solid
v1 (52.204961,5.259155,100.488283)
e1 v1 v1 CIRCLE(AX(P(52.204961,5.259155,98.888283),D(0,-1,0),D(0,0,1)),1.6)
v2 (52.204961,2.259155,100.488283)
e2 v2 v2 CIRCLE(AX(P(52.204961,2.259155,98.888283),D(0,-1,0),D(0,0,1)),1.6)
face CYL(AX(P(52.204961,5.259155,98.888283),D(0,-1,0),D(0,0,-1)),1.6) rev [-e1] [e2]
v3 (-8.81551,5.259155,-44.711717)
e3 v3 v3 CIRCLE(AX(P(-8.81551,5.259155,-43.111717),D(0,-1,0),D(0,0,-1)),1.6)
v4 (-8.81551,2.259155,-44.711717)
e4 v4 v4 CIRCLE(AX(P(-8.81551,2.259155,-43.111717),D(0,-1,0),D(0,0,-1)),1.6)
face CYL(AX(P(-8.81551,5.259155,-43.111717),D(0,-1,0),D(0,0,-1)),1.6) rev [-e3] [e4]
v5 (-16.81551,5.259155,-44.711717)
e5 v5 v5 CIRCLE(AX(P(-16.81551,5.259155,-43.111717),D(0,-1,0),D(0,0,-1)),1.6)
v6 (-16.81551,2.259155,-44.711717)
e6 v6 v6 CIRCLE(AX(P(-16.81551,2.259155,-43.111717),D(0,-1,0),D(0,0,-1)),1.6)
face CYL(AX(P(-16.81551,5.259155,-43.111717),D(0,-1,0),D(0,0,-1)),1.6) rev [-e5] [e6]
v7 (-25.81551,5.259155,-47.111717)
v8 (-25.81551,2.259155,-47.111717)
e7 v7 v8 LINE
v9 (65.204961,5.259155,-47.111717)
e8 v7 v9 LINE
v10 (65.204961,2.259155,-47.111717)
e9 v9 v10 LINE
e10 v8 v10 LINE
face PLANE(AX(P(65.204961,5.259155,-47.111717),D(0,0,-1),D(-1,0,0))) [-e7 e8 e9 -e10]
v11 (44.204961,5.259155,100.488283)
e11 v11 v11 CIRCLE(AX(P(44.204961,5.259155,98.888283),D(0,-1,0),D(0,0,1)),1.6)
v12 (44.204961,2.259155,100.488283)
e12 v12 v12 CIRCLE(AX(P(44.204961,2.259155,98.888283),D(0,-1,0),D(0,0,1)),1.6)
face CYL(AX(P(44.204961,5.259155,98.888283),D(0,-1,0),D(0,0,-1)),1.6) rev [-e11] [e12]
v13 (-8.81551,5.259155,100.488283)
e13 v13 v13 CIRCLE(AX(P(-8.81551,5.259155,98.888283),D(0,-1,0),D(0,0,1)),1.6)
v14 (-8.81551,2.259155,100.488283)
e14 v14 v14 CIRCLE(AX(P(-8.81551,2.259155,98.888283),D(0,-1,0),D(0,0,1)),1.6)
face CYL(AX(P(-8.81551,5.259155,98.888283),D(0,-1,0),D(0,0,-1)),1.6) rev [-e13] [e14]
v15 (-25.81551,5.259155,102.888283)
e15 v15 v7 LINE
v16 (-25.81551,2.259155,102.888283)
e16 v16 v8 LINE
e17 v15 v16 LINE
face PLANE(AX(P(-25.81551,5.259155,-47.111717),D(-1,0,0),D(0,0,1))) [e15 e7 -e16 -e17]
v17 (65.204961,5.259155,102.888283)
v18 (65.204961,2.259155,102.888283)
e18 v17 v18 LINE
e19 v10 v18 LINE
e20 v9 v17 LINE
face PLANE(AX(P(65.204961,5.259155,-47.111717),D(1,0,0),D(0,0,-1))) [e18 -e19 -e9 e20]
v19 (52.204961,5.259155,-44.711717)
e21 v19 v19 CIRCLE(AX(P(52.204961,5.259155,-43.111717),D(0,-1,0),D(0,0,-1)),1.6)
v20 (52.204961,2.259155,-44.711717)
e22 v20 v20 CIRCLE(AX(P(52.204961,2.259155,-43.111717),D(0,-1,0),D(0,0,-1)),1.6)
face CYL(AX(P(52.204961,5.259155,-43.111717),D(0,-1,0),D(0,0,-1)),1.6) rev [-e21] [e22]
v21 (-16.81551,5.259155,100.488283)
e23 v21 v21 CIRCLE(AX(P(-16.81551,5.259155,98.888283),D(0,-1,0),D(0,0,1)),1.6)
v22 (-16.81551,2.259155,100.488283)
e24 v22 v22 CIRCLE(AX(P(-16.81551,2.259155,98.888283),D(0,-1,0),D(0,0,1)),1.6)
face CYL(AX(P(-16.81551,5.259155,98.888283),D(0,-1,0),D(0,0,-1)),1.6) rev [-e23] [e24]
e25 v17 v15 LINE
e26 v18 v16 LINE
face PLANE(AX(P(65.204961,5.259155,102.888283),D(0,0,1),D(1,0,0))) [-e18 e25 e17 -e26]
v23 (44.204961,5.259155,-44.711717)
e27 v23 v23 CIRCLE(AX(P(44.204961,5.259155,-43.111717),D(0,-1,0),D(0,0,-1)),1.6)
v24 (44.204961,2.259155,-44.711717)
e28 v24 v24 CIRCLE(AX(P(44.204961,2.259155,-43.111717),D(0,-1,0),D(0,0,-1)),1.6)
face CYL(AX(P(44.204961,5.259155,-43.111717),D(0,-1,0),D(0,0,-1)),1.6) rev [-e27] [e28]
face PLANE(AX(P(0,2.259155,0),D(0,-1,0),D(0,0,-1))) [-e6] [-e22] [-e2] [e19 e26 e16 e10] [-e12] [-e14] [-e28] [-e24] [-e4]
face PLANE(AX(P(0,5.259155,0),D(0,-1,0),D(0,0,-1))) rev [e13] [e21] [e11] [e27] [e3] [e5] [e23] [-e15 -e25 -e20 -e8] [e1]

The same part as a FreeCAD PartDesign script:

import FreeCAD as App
import Part
import Sketcher

V = App.Vector

doc = App.newDocument("Part")
body = doc.addObject("PartDesign::Body", "Body")

sketch1 = doc.addObject("Sketcher::SketchObject", "Sketch")
body.addObject(sketch1)
sketch1.AttachmentSupport = (doc.XZ_Plane, [""])
sketch1.MapMode = "FlatFace"
sketch1.AttachmentOffset = App.Placement(V(0, 0, -2.259155), App.Rotation())
sketch1.addGeometry([
    Part.LineSegment(V(-25.8, 102.9, 0), V(-25.8, -47.1, 0)),
    Part.LineSegment(V(-25.8, -47.1, 0), V(65.2, -47.1, 0)),
    Part.LineSegment(V(65.2, -47.1, 0), V(65.2, 102.9, 0)),
    Part.LineSegment(V(65.2, 102.9, 0), V(-25.8, 102.9, 0)),
    Part.Circle(V(-16.8, -43.1, 0), V(0, 0, 1), 1.6),
    Part.Circle(V(-8.8, -43.1, 0), V(0, 0, 1), 1.6),
    Part.Circle(V(44.2, -43.1, 0), V(0, 0, 1), 1.6),
    Part.Circle(V(52.2, -43.1, 0), V(0, 0, 1), 1.6),
    Part.Circle(V(-16.8, 98.9, 0), V(0, 0, 1), 1.6),
    Part.Circle(V(-8.8, 98.9, 0), V(0, 0, 1), 1.6),
    Part.Circle(V(44.2, 98.9, 0), V(0, 0, 1), 1.6),
    Part.Circle(V(52.2, 98.9, 0), V(0, 0, 1), 1.6),
], False)
sketch1.addConstraint([
    Sketcher.Constraint("Coincident", 0, 2, 1, 1),
    Sketcher.Constraint("Coincident", 1, 2, 2, 1),
    Sketcher.Constraint("Coincident", 2, 2, 3, 1),
    Sketcher.Constraint("Coincident", 3, 2, 0, 1),
    Sketcher.Constraint("Vertical", 0),
    Sketcher.Constraint("Horizontal", 1),
    Sketcher.Constraint("Vertical", 2),
    Sketcher.Constraint("Horizontal", 3),
    Sketcher.Constraint("Equal", 4, 5),
    Sketcher.Constraint("Equal", 5, 6),
    Sketcher.Constraint("Equal", 6, 7),
    Sketcher.Constraint("Equal", 7, 8),
    Sketcher.Constraint("Equal", 8, 9),
    Sketcher.Constraint("Equal", 9, 10),
    Sketcher.Constraint("Equal", 10, 11),
    Sketcher.Constraint("Horizontal", 4, 3, 5, 3),
    Sketcher.Constraint("Horizontal", 5, 3, 6, 3),
    Sketcher.Constraint("Horizontal", 6, 3, 7, 3),
    Sketcher.Constraint("Horizontal", 8, 3, 9, 3),
    Sketcher.Constraint("Horizontal", 9, 3, 10, 3),
    Sketcher.Constraint("Horizontal", 10, 3, 11, 3),
    Sketcher.Constraint("Vertical", 4, 3, 8, 3),
    Sketcher.Constraint("Vertical", 5, 3, 9, 3),
    Sketcher.Constraint("Vertical", 6, 3, 10, 3),
    Sketcher.Constraint("Vertical", 7, 3, 11, 3),
    Sketcher.Constraint("Diameter", 4, 3.2),
    Sketcher.Constraint("DistanceY", 0, 2, 0, 1, 150.0),
    Sketcher.Constraint("DistanceX", 4, 3, 5, 3, 8.0),
    Sketcher.Constraint("DistanceX", 6, 3, 7, 3, 8.0),
    Sketcher.Constraint("DistanceY", 4, 3, 8, 3, 142.0),
    Sketcher.Constraint("DistanceX", 0, 2, 4, 3, 9.0),
    Sketcher.Constraint("DistanceY", 0, 2, 4, 3, 4.0),
    Sketcher.Constraint("DistanceX", 7, 3, 1, 2, 13.0),
    Sketcher.Constraint("DistanceX", 1, 1, 1, 2, 91.020471),
    Sketcher.Constraint("DistanceX", 4, 3, -1, 1, 16.81551),
    Sketcher.Constraint("DistanceY", 4, 3, -1, 1, 43.111717),
])
pad1 = doc.addObject("PartDesign::Pad", "Pad")
body.addObject(pad1)
pad1.Profile = sketch1
pad1.Length = 3
pad1.Reversed = True

doc.recompute()
